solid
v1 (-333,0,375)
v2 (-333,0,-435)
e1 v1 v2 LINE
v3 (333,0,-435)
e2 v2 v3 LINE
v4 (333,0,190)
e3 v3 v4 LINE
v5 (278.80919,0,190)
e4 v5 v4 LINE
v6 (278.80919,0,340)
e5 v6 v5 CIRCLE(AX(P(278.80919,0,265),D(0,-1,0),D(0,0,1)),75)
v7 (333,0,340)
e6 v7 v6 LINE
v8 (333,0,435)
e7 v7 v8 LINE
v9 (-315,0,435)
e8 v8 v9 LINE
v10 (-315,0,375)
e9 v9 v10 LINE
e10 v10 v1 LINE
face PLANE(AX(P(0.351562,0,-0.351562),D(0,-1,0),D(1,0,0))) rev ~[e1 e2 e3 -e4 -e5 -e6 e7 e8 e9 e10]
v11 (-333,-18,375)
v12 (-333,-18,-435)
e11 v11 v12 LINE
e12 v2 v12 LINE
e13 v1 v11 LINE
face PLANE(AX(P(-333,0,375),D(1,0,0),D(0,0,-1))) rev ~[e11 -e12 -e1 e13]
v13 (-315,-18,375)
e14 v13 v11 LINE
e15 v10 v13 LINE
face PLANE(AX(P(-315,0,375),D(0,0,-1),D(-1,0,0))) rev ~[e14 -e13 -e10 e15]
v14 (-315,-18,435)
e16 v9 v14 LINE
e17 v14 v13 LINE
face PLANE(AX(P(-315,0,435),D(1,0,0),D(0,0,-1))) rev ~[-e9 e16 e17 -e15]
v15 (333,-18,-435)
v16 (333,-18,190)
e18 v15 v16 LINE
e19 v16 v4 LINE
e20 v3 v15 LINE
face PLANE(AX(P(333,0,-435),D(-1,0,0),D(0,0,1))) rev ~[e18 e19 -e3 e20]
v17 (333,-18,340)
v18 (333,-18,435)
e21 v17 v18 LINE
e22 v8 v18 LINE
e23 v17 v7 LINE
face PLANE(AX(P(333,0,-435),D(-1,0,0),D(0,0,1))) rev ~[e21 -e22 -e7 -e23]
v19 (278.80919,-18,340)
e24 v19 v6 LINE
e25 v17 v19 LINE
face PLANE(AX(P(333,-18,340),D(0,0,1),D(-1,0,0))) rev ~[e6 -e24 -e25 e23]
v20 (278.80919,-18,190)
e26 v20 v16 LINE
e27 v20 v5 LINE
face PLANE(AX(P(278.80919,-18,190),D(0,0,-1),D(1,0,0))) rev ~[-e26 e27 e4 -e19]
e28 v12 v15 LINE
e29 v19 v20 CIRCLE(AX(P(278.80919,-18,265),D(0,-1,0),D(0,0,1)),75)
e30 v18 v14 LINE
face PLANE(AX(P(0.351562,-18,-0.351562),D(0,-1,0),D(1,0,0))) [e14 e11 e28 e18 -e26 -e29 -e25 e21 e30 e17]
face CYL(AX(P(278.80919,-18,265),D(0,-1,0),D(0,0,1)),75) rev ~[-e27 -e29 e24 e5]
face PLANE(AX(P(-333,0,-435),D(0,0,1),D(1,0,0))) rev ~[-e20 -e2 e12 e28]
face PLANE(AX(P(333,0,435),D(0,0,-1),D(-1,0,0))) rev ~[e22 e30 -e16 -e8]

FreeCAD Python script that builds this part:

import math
import FreeCAD as App
import Part
import Sketcher

doc = App.newDocument("Part")
body = doc.addObject("PartDesign::Body", "Body")

# Sketch on XZ plane
sketch1 = body.newObject("Sketcher::SketchObject", "Sketch")
sketch1.AttachmentSupport = (doc.getObject("XZ_Plane"), [""])
sketch1.MapMode = "FlatFace"
sketch1.addGeometry(Part.LineSegment(App.Vector(333, -435, 0), App.Vector(333, 435, 0)), False)
sketch1.addGeometry(Part.LineSegment(App.Vector(333, 435, 0), App.Vector(-315, 435, 0)), False)
sketch1.addGeometry(Part.LineSegment(App.Vector(-315, 435, 0), App.Vector(-315, 375, 0)), False)
sketch1.addGeometry(Part.LineSegment(App.Vector(-315, 375, 0), App.Vector(-333, 375, 0)), False)
sketch1.addGeometry(Part.LineSegment(App.Vector(-333, 375, 0), App.Vector(-333, -435, 0)), False)
sketch1.addGeometry(Part.LineSegment(App.Vector(-333, -435, 0), App.Vector(333, -435, 0)), False)
sketch1.addConstraint(Sketcher.Constraint("Coincident", 0, 2, 1, 1))
sketch1.addConstraint(Sketcher.Constraint("Coincident", 1, 2, 2, 1))
sketch1.addConstraint(Sketcher.Constraint("Coincident", 2, 2, 3, 1))
sketch1.addConstraint(Sketcher.Constraint("Coincident", 3, 2, 4, 1))
sketch1.addConstraint(Sketcher.Constraint("Coincident", 4, 2, 5, 1))
sketch1.addConstraint(Sketcher.Constraint("Coincident", 5, 2, 0, 1))
sketch1.addConstraint(Sketcher.Constraint("Vertical", 0))
sketch1.addConstraint(Sketcher.Constraint("Horizontal", 1))
sketch1.addConstraint(Sketcher.Constraint("Vertical", 2))
sketch1.addConstraint(Sketcher.Constraint("Horizontal", 3))
sketch1.addConstraint(Sketcher.Constraint("Vertical", 4))
sketch1.addConstraint(Sketcher.Constraint("Horizontal", 5))
sketch1.addConstraint(Sketcher.Constraint("Symmetric", 0, 2, 4, 2, -1, 1))
sketch1.addConstraint(Sketcher.Constraint("DistanceX", 1, 2, 1, 1, 648.0))
sketch1.addConstraint(Sketcher.Constraint("DistanceX", 3, 2, 3, 1, 18.0))
sketch1.addConstraint(Sketcher.Constraint("DistanceY", 0, 1, 0, 2, 870.0))
sketch1.addConstraint(Sketcher.Constraint("DistanceY", 2, 2, 2, 1, 60.0))
pad1 = body.newObject("PartDesign::Pad", "Pad")
pad1.Profile = sketch1
pad1.Length = 18

# Sketch on XZ plane
sketch2 = body.newObject("Sketcher::SketchObject", "Sketch001")
sketch2.AttachmentSupport = (doc.getObject("XZ_Plane"), [""])
sketch2.MapMode = "FlatFace"
sketch2.AttachmentOffset = App.Placement(App.Vector(0, 0, 18), App.Rotation())
sketch2.addGeometry(Part.LineSegment(App.Vector(333, 340, 0), App.Vector(279, 340, 0)), False)
sketch2.addGeometry(Part.ArcOfCircle(Part.Circle(App.Vector(279, 265, 0), App.Vector(0, 0, 1), 75), math.radians(90), math.radians(270)), False)
sketch2.addGeometry(Part.LineSegment(App.Vector(279, 190, 0), App.Vector(333, 190, 0)), False)
sketch2.addGeometry(Part.LineSegment(App.Vector(333, 190, 0), App.Vector(333, 340, 0)), False)
sketch2.addConstraint(Sketcher.Constraint("Tangent", 0, 2, 1, 1))
sketch2.addConstraint(Sketcher.Constraint("Tangent", 1, 2, 2, 1))
sketch2.addConstraint(Sketcher.Constraint("Coincident", 2, 2, 3, 1))
sketch2.addConstraint(Sketcher.Constraint("Coincident", 3, 2, 0, 1))
sketch2.addConstraint(Sketcher.Constraint("Horizontal", 0))
sketch2.addConstraint(Sketcher.Constraint("Horizontal", 2))
sketch2.addConstraint(Sketcher.Constraint("Vertical", 3))
sketch2.addConstraint(Sketcher.Constraint("Radius", 1, 75.0))
sketch2.addConstraint(Sketcher.Constraint("DistanceY", -1, 1, 1, 3, 265.0))
sketch2.addConstraint(Sketcher.Constraint("DistanceX", -1, 1, 2, 2, 333.0))
sketch2.addConstraint(Sketcher.Constraint("DistanceX", 0, 2, 0, 1, 54.19081))
pocket1 = body.newObject("PartDesign::Pocket", "Pocket")
pocket1.Profile = sketch2
pocket1.Length = 18

doc.recompute()
